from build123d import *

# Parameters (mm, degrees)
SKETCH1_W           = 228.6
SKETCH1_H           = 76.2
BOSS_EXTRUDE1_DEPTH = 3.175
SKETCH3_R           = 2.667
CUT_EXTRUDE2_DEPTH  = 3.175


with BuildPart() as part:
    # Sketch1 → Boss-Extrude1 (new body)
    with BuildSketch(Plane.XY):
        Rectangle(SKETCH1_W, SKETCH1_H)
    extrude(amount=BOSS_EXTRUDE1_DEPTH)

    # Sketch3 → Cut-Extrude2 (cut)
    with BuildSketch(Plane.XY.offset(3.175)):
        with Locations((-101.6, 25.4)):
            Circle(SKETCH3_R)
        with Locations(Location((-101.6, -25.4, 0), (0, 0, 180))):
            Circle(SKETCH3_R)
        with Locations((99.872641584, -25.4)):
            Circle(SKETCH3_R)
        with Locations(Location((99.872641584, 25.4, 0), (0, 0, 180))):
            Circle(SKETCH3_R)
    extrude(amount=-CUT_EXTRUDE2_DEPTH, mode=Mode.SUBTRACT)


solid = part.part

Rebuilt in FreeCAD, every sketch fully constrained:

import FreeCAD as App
import Part
import Sketcher
Q = App.Units.Quantity


def add_polygon(sketch, points):
    """Adds a closed chain of lines whose ends are joined by coincident constraints."""
    first, n = sketch.GeometryCount, len(points)
    for a, b in zip(points, points[1:] + points[:1]):
        sketch.addGeometry(Part.LineSegment(App.Vector(*a, 0), App.Vector(*b, 0)), False)
    for i in range(n):
        sketch.addConstraint(Sketcher.Constraint("Coincident", first + i, 2, first + (i + 1) % n, 1))

doc = App.newDocument("Part")
body = doc.addObject("PartDesign::Body", "Body")

# Sketch on XY plane
sketch1 = body.newObject("Sketcher::SketchObject", "Sketch")
sketch1.AttachmentSupport = (doc.getObject("XY_Plane"), [""])
sketch1.MapMode = "FlatFace"
add_polygon(sketch1, [(-114, 38), (-114, -38), (114, -38), (114, 38)])  # lines 0-3
sketch1.addConstraint([
    Sketcher.Constraint("Vertical", 0),
    Sketcher.Constraint("Horizontal", 1),
    Sketcher.Constraint("Vertical", 2),
    Sketcher.Constraint("Horizontal", 3),
    Sketcher.Constraint("Symmetric", 0, 2, 2, 2, -1, 1),
    Sketcher.Constraint("DistanceX", 1, 1, 1, 2, Q("9 in")),
    Sketcher.Constraint("DistanceY", 0, 2, 0, 1, Q("3 in")),
])
pad1 = body.newObject("PartDesign::Pad", "Pad")
pad1.Profile = sketch1
pad1.Length = Q("0.125 in")

# Sketch on XY plane
sketch2 = body.newObject("Sketcher::SketchObject", "Sketch001")
sketch2.AttachmentSupport = (doc.getObject("XY_Plane"), [""])
sketch2.MapMode = "FlatFace"
sketch2.AttachmentOffset = App.Placement(App.Vector(0, 0, 0.125 * 25.4), App.Rotation())
sketch2.addGeometry([
    Part.Circle(App.Vector(-101.6, 25.4, 0), App.Vector(0, 0, 1), 2.7),
    Part.Circle(App.Vector(-101.6, -25.4, 0), App.Vector(0, 0, 1), 2.7),
    Part.Circle(App.Vector(99.9, -25.4, 0), App.Vector(0, 0, 1), 2.7),
    Part.Circle(App.Vector(99.9, 25.4, 0), App.Vector(0, 0, 1), 2.7),
], False)
sketch2.addConstraint([
    Sketcher.Constraint("Equal", 0, 1),
    Sketcher.Constraint("Equal", 1, 2),
    Sketcher.Constraint("Equal", 2, 3),
    Sketcher.Constraint("Symmetric", 0, 3, 1, 3, -1),
    Sketcher.Constraint("Symmetric", 2, 3, 3, 3, -1),
    Sketcher.Constraint("Horizontal", 1, 3, 2, 3),
    Sketcher.Constraint("Diameter", 0, Q("0.21 in")),
    Sketcher.Constraint("DistanceX", 0, 3, -1, 1, Q("4 in")),
    Sketcher.Constraint("DistanceY", -1, 1, 0, 3, Q("1 in")),
    Sketcher.Constraint("DistanceX", -1, 1, 2, 3, Q("99.872642 mm")),
])
pocket1 = body.newObject("PartDesign::Pocket", "Pocket")
pocket1.Profile = sketch2
pocket1.Length = Q("0.125 in")

doc.recompute()
